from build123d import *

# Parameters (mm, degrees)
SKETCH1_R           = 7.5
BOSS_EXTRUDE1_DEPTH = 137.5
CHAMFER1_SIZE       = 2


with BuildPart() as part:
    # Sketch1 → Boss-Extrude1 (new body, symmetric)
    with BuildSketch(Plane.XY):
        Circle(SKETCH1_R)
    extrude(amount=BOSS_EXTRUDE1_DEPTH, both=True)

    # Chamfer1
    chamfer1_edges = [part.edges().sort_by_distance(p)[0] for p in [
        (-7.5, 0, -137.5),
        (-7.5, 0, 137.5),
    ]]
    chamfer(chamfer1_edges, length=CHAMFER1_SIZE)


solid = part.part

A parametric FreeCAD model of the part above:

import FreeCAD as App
import Part
import Sketcher
from FreeCAD import Vector
Q = App.Units.Quantity


def edges_at(feature, points):
    """Names of the edges that pass closest to the given points."""
    edges = feature.Shape.Edges
    near = lambda p: min(range(len(edges)), key=lambda i: edges[i].distToShape(Part.Vertex(*p))[0])
    return sorted({f"Edge{near(p) + 1}" for p in points})

doc = App.newDocument("Part")
body = doc.addObject("PartDesign::Body", "Body")

sketch1 = body.newObject("Sketcher::SketchObject", "Sketch")
sketch1.AttachmentSupport = (doc.getObject("XY_Plane"), [""])
sketch1.MapMode = "FlatFace"
sketch1.addGeometry(Part.Circle(Vector(0, 0, 0), Vector(0, 0, 1), 8), False)
sketch1.addConstraint(Sketcher.Constraint("Coincident", 0, 3, -1, 1))
sketch1.addConstraint(Sketcher.Constraint("Diameter", 0, Q("15 mm")))
pad1 = body.newObject("PartDesign::Pad", "Pad")
pad1.Profile = sketch1
pad1.Length = 275
pad1.Midplane = True
doc.recompute()

chamfer = body.newObject("PartDesign::Chamfer", "Chamfer")
chamfer.Base = (pad1, edges_at(pad1, [(-7.5, 0, -137.5), (-7.5, 0, 137.5)]))
chamfer.Size = 2

doc.recompute()
